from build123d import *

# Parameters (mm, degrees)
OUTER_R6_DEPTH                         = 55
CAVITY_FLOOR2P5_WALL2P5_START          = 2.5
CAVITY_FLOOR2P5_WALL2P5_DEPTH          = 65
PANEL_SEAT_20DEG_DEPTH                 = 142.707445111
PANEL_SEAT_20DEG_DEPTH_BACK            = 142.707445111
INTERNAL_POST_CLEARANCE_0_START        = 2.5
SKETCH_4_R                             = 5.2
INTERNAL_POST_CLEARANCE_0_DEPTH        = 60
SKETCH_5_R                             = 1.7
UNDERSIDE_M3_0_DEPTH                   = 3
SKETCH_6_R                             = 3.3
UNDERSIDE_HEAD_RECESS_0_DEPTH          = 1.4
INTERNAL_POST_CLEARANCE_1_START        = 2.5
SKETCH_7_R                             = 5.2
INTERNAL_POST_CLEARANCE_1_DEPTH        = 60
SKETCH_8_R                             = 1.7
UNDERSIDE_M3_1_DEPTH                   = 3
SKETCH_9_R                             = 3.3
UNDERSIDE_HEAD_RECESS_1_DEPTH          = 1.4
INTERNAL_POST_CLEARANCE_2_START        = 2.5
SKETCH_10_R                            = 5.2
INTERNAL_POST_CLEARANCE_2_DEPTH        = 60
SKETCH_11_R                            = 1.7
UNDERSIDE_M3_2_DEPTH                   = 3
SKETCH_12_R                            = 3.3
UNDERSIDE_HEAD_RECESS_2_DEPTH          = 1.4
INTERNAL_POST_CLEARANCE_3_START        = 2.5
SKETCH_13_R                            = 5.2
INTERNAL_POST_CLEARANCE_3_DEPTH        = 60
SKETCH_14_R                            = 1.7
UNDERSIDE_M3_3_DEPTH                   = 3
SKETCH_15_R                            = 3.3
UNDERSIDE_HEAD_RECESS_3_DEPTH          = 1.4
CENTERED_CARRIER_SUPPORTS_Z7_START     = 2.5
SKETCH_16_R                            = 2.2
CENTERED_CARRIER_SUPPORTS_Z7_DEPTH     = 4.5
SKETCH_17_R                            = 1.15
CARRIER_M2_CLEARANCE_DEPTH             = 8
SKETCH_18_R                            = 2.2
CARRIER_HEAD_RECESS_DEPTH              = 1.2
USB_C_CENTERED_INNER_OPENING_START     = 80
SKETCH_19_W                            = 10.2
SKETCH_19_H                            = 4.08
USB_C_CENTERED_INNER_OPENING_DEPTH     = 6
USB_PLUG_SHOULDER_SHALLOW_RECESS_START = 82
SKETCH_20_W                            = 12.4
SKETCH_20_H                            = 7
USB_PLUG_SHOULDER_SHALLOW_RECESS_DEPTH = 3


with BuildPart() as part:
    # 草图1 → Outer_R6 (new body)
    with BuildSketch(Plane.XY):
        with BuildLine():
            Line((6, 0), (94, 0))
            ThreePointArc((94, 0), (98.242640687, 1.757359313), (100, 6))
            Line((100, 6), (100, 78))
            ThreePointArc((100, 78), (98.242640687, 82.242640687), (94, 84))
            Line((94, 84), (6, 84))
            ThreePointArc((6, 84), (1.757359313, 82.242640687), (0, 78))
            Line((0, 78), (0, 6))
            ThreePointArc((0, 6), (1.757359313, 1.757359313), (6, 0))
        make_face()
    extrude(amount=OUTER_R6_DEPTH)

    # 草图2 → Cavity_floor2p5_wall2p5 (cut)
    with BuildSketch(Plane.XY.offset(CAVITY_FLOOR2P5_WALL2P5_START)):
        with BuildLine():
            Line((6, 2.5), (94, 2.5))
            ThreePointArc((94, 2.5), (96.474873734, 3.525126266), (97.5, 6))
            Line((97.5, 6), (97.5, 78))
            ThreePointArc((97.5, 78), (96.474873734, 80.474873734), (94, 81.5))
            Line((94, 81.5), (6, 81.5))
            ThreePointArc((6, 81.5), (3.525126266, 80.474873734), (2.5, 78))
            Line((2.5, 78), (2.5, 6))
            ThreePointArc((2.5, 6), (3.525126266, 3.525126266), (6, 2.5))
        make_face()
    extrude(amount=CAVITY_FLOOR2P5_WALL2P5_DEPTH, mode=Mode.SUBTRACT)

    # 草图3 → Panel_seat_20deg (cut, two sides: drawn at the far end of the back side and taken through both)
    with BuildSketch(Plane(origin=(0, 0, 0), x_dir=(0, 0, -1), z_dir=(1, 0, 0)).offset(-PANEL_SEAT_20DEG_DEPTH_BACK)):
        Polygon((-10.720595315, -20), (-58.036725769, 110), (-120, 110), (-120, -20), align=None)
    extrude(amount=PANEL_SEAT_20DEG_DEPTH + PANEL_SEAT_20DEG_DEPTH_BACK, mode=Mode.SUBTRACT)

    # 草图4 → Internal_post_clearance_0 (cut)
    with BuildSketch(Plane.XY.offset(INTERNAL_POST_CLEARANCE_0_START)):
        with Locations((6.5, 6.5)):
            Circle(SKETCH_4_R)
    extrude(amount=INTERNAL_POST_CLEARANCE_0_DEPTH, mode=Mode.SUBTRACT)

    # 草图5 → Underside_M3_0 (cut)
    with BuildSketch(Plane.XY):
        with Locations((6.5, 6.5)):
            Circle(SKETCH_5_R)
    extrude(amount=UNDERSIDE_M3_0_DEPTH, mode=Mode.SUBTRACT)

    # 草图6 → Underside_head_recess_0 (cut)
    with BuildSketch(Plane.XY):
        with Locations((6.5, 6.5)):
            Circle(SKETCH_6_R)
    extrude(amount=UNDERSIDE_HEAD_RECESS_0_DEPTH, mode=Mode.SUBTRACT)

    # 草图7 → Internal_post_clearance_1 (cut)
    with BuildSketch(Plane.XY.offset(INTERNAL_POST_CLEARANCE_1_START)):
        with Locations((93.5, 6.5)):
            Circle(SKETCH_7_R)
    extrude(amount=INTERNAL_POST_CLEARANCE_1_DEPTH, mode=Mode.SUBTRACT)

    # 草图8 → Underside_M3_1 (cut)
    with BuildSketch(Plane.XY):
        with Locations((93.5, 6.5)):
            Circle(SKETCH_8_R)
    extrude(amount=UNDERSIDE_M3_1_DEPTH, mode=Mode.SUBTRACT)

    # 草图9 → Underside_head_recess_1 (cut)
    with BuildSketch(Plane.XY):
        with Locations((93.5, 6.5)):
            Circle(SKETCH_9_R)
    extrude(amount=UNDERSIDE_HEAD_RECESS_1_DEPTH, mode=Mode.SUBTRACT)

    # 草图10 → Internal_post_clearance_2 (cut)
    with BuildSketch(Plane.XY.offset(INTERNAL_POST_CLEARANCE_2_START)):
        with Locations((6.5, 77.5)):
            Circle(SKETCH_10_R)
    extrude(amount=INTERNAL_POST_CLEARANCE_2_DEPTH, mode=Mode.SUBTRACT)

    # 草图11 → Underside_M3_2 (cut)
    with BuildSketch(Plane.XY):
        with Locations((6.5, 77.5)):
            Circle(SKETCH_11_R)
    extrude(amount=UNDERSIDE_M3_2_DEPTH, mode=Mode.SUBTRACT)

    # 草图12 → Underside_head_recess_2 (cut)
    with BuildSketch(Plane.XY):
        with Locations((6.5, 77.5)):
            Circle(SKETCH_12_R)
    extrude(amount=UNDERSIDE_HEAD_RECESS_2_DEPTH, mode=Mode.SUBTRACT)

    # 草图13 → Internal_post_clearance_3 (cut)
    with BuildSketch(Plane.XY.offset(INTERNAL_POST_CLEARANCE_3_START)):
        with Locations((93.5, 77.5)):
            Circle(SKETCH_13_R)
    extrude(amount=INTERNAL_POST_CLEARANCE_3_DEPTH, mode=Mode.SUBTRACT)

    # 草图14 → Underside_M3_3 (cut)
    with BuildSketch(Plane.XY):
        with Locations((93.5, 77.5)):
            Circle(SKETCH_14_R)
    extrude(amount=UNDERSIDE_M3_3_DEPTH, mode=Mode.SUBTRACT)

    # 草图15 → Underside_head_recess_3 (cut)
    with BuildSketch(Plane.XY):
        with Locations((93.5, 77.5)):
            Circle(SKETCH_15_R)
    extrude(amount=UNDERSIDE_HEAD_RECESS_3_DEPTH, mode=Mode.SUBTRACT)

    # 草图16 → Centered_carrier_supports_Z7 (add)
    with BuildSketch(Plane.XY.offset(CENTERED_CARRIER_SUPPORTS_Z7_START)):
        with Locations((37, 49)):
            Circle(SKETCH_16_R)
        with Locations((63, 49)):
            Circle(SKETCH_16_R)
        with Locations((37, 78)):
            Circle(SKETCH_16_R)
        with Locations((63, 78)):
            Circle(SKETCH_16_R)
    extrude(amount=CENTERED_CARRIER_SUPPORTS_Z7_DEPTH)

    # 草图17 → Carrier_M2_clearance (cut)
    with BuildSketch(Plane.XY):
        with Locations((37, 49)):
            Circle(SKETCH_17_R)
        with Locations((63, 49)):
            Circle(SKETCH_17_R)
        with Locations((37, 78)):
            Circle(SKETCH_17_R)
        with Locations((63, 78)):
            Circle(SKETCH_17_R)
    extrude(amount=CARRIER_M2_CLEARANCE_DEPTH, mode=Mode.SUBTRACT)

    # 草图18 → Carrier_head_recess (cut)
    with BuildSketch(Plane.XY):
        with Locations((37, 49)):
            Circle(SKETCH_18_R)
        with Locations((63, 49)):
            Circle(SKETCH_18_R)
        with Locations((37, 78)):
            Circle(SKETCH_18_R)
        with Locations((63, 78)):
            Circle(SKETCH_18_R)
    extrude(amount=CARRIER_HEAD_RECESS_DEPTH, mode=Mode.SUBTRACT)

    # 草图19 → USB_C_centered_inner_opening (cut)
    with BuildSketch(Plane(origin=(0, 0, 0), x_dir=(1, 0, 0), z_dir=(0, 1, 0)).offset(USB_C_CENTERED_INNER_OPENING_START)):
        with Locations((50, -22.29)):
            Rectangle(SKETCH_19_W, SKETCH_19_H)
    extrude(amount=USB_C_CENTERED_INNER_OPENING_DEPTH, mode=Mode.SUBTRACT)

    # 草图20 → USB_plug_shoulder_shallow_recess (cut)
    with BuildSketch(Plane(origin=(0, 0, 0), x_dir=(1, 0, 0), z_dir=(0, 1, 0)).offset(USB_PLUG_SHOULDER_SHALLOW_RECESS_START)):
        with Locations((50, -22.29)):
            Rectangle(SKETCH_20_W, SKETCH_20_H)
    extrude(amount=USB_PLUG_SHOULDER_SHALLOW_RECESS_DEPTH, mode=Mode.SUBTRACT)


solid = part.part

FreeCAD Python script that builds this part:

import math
import FreeCAD as App
import Part
import Sketcher
Q = App.Units.Quantity


def add_polygon(sketch, points):
    """Adds a closed chain of lines whose ends are joined by coincident constraints."""
    first, n = sketch.GeometryCount, len(points)
    for a, b in zip(points, points[1:] + points[:1]):
        sketch.addGeometry(Part.LineSegment(App.Vector(*a, 0), App.Vector(*b, 0)), False)
    for i in range(n):
        sketch.addConstraint(Sketcher.Constraint("Coincident", first + i, 2, first + (i + 1) % n, 1))

doc = App.newDocument("Part")
body = doc.addObject("PartDesign::Body", "Body")

# Sketch on XY plane
sketch1 = doc.addObject("Sketcher::SketchObject", "Sketch")
body.addObject(sketch1)
sketch1.AttachmentSupport = (doc.XY_Plane, [""])
sketch1.MapMode = "FlatFace"
sketch1.addGeometry(Part.LineSegment(App.Vector(6, 0, 0), App.Vector(94, 0, 0)), False)
sketch1.addGeometry(Part.ArcOfCircle(Part.Circle(App.Vector(94, 6, 0), App.Vector(0, 0, 1), 6), math.radians(-90), math.radians(0)), False)
sketch1.addGeometry(Part.LineSegment(App.Vector(100, 6, 0), App.Vector(100, 78, 0)), False)
sketch1.addGeometry(Part.ArcOfCircle(Part.Circle(App.Vector(94, 78, 0), App.Vector(0, 0, 1), 6), math.radians(0), math.radians(90)), False)
sketch1.addGeometry(Part.LineSegment(App.Vector(94, 84, 0), App.Vector(6, 84, 0)), False)
sketch1.addGeometry(Part.ArcOfCircle(Part.Circle(App.Vector(6, 78, 0), App.Vector(0, 0, 1), 6), math.radians(90), math.radians(180)), False)
sketch1.addGeometry(Part.LineSegment(App.Vector(0, 78, 0), App.Vector(0, 6, 0)), False)
sketch1.addGeometry(Part.ArcOfCircle(Part.Circle(App.Vector(6, 6, 0), App.Vector(0, 0, 1), 6), math.radians(180), math.radians(270)), False)
sketch1.addConstraint(Sketcher.Constraint("Tangent", 0, 2, 1, 1))
sketch1.addConstraint(Sketcher.Constraint("Tangent", 1, 2, 2, 1))
sketch1.addConstraint(Sketcher.Constraint("Tangent", 2, 2, 3, 1))
sketch1.addConstraint(Sketcher.Constraint("Tangent", 3, 2, 4, 1))
sketch1.addConstraint(Sketcher.Constraint("Tangent", 4, 2, 5, 1))
sketch1.addConstraint(Sketcher.Constraint("Tangent", 5, 2, 6, 1))
sketch1.addConstraint(Sketcher.Constraint("Tangent", 6, 2, 7, 1))
sketch1.addConstraint(Sketcher.Constraint("Tangent", 7, 2, 0, 1))
sketch1.addConstraint(Sketcher.Constraint("Horizontal", 0))
sketch1.addConstraint(Sketcher.Constraint("Vertical", 2))
sketch1.addConstraint(Sketcher.Constraint("Horizontal", 4))
sketch1.addConstraint(Sketcher.Constraint("Vertical", 6))
sketch1.addConstraint(Sketcher.Constraint("Equal", 1, 3))
sketch1.addConstraint(Sketcher.Constraint("Equal", 3, 5))
sketch1.addConstraint(Sketcher.Constraint("Equal", 5, 7))
sketch1.addConstraint(Sketcher.Constraint("PointOnObject", 0, 2, -1))
sketch1.addConstraint(Sketcher.Constraint("PointOnObject", 5, 2, -2))
sketch1.addConstraint(Sketcher.Constraint("Radius", 1, Q("6 mm")))
sketch1.addConstraint(Sketcher.Constraint("DistanceX", 0, 1, 0, 2, Q("88 mm")))
sketch1.addConstraint(Sketcher.Constraint("DistanceY", 2, 1, 2, 2, Q("72 mm")))
pad1 = doc.addObject("PartDesign::Pad", "Pad")
body.addObject(pad1)
pad1.Profile = sketch1
pad1.Length = 55

# Sketch on XY plane
sketch2 = doc.addObject("Sketcher::SketchObject", "Sketch001")
body.addObject(sketch2)
sketch2.AttachmentSupport = (doc.XY_Plane, [""])
sketch2.MapMode = "FlatFace"
sketch2.AttachmentOffset = App.Placement(App.Vector(0, 0, 2.5), App.Rotation())
sketch2.addGeometry(Part.LineSegment(App.Vector(6, 2.5, 0), App.Vector(94, 2.5, 0)), False)
sketch2.addGeometry(Part.ArcOfCircle(Part.Circle(App.Vector(94, 6, 0), App.Vector(0, 0, 1), 3.5), math.radians(-90), math.radians(0)), False)
sketch2.addGeometry(Part.LineSegment(App.Vector(97.5, 6, 0), App.Vector(97.5, 78, 0)), False)
sketch2.addGeometry(Part.ArcOfCircle(Part.Circle(App.Vector(94, 78, 0), App.Vector(0, 0, 1), 3.5), math.radians(0), math.radians(90)), False)
sketch2.addGeometry(Part.LineSegment(App.Vector(94, 81.5, 0), App.Vector(6, 81.5, 0)), False)
sketch2.addGeometry(Part.ArcOfCircle(Part.Circle(App.Vector(6, 78, 0), App.Vector(0, 0, 1), 3.5), math.radians(90), math.radians(180)), False)
sketch2.addGeometry(Part.LineSegment(App.Vector(2.5, 78, 0), App.Vector(2.5, 6, 0)), False)
sketch2.addGeometry(Part.ArcOfCircle(Part.Circle(App.Vector(6, 6, 0), App.Vector(0, 0, 1), 3.5), math.radians(-180), math.radians(-90)), False)
sketch2.addConstraint(Sketcher.Constraint("Tangent", 0, 2, 1, 1))
sketch2.addConstraint(Sketcher.Constraint("Tangent", 1, 2, 2, 1))
sketch2.addConstraint(Sketcher.Constraint("Tangent", 2, 2, 3, 1))
sketch2.addConstraint(Sketcher.Constraint("Tangent", 3, 2, 4, 1))
sketch2.addConstraint(Sketcher.Constraint("Tangent", 4, 2, 5, 1))
sketch2.addConstraint(Sketcher.Constraint("Tangent", 5, 2, 6, 1))
sketch2.addConstraint(Sketcher.Constraint("Tangent", 6, 2, 7, 1))
sketch2.addConstraint(Sketcher.Constraint("Tangent", 7, 2, 0, 1))
sketch2.addConstraint(Sketcher.Constraint("Horizontal", 0))
sketch2.addConstraint(Sketcher.Constraint("Vertical", 2))
sketch2.addConstraint(Sketcher.Constraint("Horizontal", 4))
sketch2.addConstraint(Sketcher.Constraint("Vertical", 6))
sketch2.addConstraint(Sketcher.Constraint("Equal", 1, 3))
sketch2.addConstraint(Sketcher.Constraint("Equal", 3, 5))
sketch2.addConstraint(Sketcher.Constraint("Equal", 5, 7))
sketch2.addConstraint(Sketcher.Constraint("Radius", 1, Q("3.5 mm")))
sketch2.addConstraint(Sketcher.Constraint("DistanceX", 0, 1, 0, 2, Q("88 mm")))
sketch2.addConstraint(Sketcher.Constraint("DistanceY", 2, 1, 2, 2, Q("72 mm")))
sketch2.addConstraint(Sketcher.Constraint("DistanceX", -1, 1, 1, 3, Q("94 mm")))
sketch2.addConstraint(Sketcher.Constraint("DistanceY", -1, 1, 1, 3, Q("6 mm")))
pocket1 = doc.addObject("PartDesign::Pocket", "Pocket")
body.addObject(pocket1)
pocket1.Profile = sketch2
pocket1.Length = 65
pocket1.Reversed = True

# Sketch on YZ plane
sketch3 = doc.addObject("Sketcher::SketchObject", "Sketch002")
body.addObject(sketch3)
sketch3.AttachmentSupport = (doc.YZ_Plane, [""])
sketch3.MapMode = "FlatFace"
add_polygon(sketch3, [(-20, 10.720595), (110, 58.036726), (110, 120), (-20, 120)])  # lines 0-3
sketch3.addConstraint(Sketcher.Constraint("Vertical", 1))
sketch3.addConstraint(Sketcher.Constraint("Horizontal", 2))
sketch3.addConstraint(Sketcher.Constraint("Vertical", 3))
sketch3.addConstraint(Sketcher.Constraint("DistanceX", 2, 2, 2, 1, Q("130 mm")))
sketch3.addConstraint(Sketcher.Constraint("Angle", 0, Q("20 deg")))
sketch3.addConstraint(Sketcher.Constraint("DistanceX", -1, 1, 0, 2, Q("110 mm")))
sketch3.addConstraint(Sketcher.Constraint("DistanceY", -1, 1, 1, 2, Q("120 mm")))
sketch3.addConstraint(Sketcher.Constraint("DistanceY", 1, 1, 1, 2, Q("61.963274 mm")))
pocket2 = doc.addObject("PartDesign::Pocket", "Pocket001")
body.addObject(pocket2)
pocket2.Profile = sketch3
pocket2.Type = "ThroughAll"
pocket2.Midplane = True

# Sketch on XY plane
sketch4 = doc.addObject("Sketcher::SketchObject", "Sketch003")
body.addObject(sketch4)
sketch4.AttachmentSupport = (doc.XY_Plane, [""])
sketch4.MapMode = "FlatFace"
sketch4.AttachmentOffset = App.Placement(App.Vector(0, 0, 2.5), App.Rotation())
sketch4.addGeometry(Part.Circle(App.Vector(6.5, 6.5, 0), App.Vector(0, 0, 1), 5.2), False)
sketch4.addConstraint(Sketcher.Constraint("Diameter", 0, Q("10.4 mm")))
sketch4.addConstraint(Sketcher.Constraint("DistanceX", -1, 1, 0, 3, Q("6.5 mm")))
sketch4.addConstraint(Sketcher.Constraint("DistanceY", -1, 1, 0, 3, Q("6.5 mm")))
pocket3 = doc.addObject("PartDesign::Pocket", "Pocket002")
body.addObject(pocket3)
pocket3.Profile = sketch4
pocket3.Length = 60
pocket3.Reversed = True

# Sketch on XY plane
sketch5 = doc.addObject("Sketcher::SketchObject", "Sketch004")
body.addObject(sketch5)
sketch5.AttachmentSupport = (doc.XY_Plane, [""])
sketch5.MapMode = "FlatFace"
sketch5.addGeometry(Part.Circle(App.Vector(6.5, 6.5, 0), App.Vector(0, 0, 1), 1.7), False)
sketch5.addConstraint(Sketcher.Constraint("Diameter", 0, Q("3.4 mm")))
sketch5.addConstraint(Sketcher.Constraint("DistanceX", -1, 1, 0, 3, Q("6.5 mm")))
sketch5.addConstraint(Sketcher.Constraint("DistanceY", -1, 1, 0, 3, Q("6.5 mm")))
pocket4 = doc.addObject("PartDesign::Pocket", "Pocket003")
body.addObject(pocket4)
pocket4.Profile = sketch5
pocket4.Length = 3
pocket4.Reversed = True

# Sketch on XY plane
sketch6 = doc.addObject("Sketcher::SketchObject", "Sketch005")
body.addObject(sketch6)
sketch6.AttachmentSupport = (doc.XY_Plane, [""])
sketch6.MapMode = "FlatFace"
sketch6.addGeometry(Part.Circle(App.Vector(6.5, 6.5, 0), App.Vector(0, 0, 1), 3.3), False)
sketch6.addConstraint(Sketcher.Constraint("Diameter", 0, Q("6.6 mm")))
sketch6.addConstraint(Sketcher.Constraint("DistanceX", -1, 1, 0, 3, Q("6.5 mm")))
sketch6.addConstraint(Sketcher.Constraint("DistanceY", -1, 1, 0, 3, Q("6.5 mm")))
pocket5 = doc.addObject("PartDesign::Pocket", "Pocket004")
body.addObject(pocket5)
pocket5.Profile = sketch6
pocket5.Length = 1.4
pocket5.Reversed = True

# Sketch on XY plane
sketch7 = doc.addObject("Sketcher::SketchObject", "Sketch006")
body.addObject(sketch7)
sketch7.AttachmentSupport = (doc.XY_Plane, [""])
sketch7.MapMode = "FlatFace"
sketch7.AttachmentOffset = App.Placement(App.Vector(0, 0, 2.5), App.Rotation())
sketch7.addGeometry(Part.Circle(App.Vector(93.5, 6.5, 0), App.Vector(0, 0, 1), 5.2), False)
sketch7.addConstraint(Sketcher.Constraint("Diameter", 0, Q("10.4 mm")))
sketch7.addConstraint(Sketcher.Constraint("DistanceX", -1, 1, 0, 3, Q("93.5 mm")))
sketch7.addConstraint(Sketcher.Constraint("DistanceY", -1, 1, 0, 3, Q("6.5 mm")))
pocket6 = doc.addObject("PartDesign::Pocket", "Pocket005")
body.addObject(pocket6)
pocket6.Profile = sketch7
pocket6.Length = 60
pocket6.Reversed = True

# Sketch on XY plane
sketch8 = doc.addObject("Sketcher::SketchObject", "Sketch007")
body.addObject(sketch8)
sketch8.AttachmentSupport = (doc.XY_Plane, [""])
sketch8.MapMode = "FlatFace"
sketch8.addGeometry(Part.Circle(App.Vector(93.5, 6.5, 0), App.Vector(0, 0, 1), 1.7), False)
sketch8.addConstraint(Sketcher.Constraint("Diameter", 0, Q("3.4 mm")))
sketch8.addConstraint(Sketcher.Constraint("DistanceX", -1, 1, 0, 3, Q("93.5 mm")))
sketch8.addConstraint(Sketcher.Constraint("DistanceY", -1, 1, 0, 3, Q("6.5 mm")))
pocket7 = doc.addObject("PartDesign::Pocket", "Pocket006")
body.addObject(pocket7)
pocket7.Profile = sketch8
pocket7.Length = 3
pocket7.Reversed = True

# Sketch on XY plane
sketch9 = doc.addObject("Sketcher::SketchObject", "Sketch008")
body.addObject(sketch9)
sketch9.AttachmentSupport = (doc.XY_Plane, [""])
sketch9.MapMode = "FlatFace"
sketch9.addGeometry(Part.Circle(App.Vector(93.5, 6.5, 0), App.Vector(0, 0, 1), 3.3), False)
sketch9.addConstraint(Sketcher.Constraint("Diameter", 0, Q("6.6 mm")))
sketch9.addConstraint(Sketcher.Constraint("DistanceX", -1, 1, 0, 3, Q("93.5 mm")))
sketch9.addConstraint(Sketcher.Constraint("DistanceY", -1, 1, 0, 3, Q("6.5 mm")))
pocket8 = doc.addObject("PartDesign::Pocket", "Pocket007")
body.addObject(pocket8)
pocket8.Profile = sketch9
pocket8.Length = 1.4
pocket8.Reversed = True

# Sketch on XY plane
sketch10 = doc.addObject("Sketcher::SketchObject", "Sketch009")
body.addObject(sketch10)
sketch10.AttachmentSupport = (doc.XY_Plane, [""])
sketch10.MapMode = "FlatFace"
sketch10.AttachmentOffset = App.Placement(App.Vector(0, 0, 2.5), App.Rotation())
sketch10.addGeometry(Part.Circle(App.Vector(6.5, 77.5, 0), App.Vector(0, 0, 1), 5.2), False)
sketch10.addConstraint(Sketcher.Constraint("Diameter", 0, Q("10.4 mm")))
sketch10.addConstraint(Sketcher.Constraint("DistanceX", -1, 1, 0, 3, Q("6.5 mm")))
sketch10.addConstraint(Sketcher.Constraint("DistanceY", -1, 1, 0, 3, Q("77.5 mm")))
pocket9 = doc.addObject("PartDesign::Pocket", "Pocket008")
body.addObject(pocket9)
pocket9.Profile = sketch10
pocket9.Length = 60
pocket9.Reversed = True

# Sketch on XY plane
sketch11 = doc.addObject("Sketcher::SketchObject", "Sketch010")
body.addObject(sketch11)
sketch11.AttachmentSupport = (doc.XY_Plane, [""])
sketch11.MapMode = "FlatFace"
sketch11.addGeometry(Part.Circle(App.Vector(6.5, 77.5, 0), App.Vector(0, 0, 1), 1.7), False)
sketch11.addConstraint(Sketcher.Constraint("Diameter", 0, Q("3.4 mm")))
sketch11.addConstraint(Sketcher.Constraint("DistanceX", -1, 1, 0, 3, Q("6.5 mm")))
sketch11.addConstraint(Sketcher.Constraint("DistanceY", -1, 1, 0, 3, Q("77.5 mm")))
pocket10 = doc.addObject("PartDesign::Pocket", "Pocket009")
body.addObject(pocket10)
pocket10.Profile = sketch11
pocket10.Length = 3
pocket10.Reversed = True

# Sketch on XY plane
sketch12 = doc.addObject("Sketcher::SketchObject", "Sketch011")
body.addObject(sketch12)
sketch12.AttachmentSupport = (doc.XY_Plane, [""])
sketch12.MapMode = "FlatFace"
sketch12.addGeometry(Part.Circle(App.Vector(6.5, 77.5, 0), App.Vector(0, 0, 1), 3.3), False)
sketch12.addConstraint(Sketcher.Constraint("Diameter", 0, Q("6.6 mm")))
sketch12.addConstraint(Sketcher.Constraint("DistanceX", -1, 1, 0, 3, Q("6.5 mm")))
sketch12.addConstraint(Sketcher.Constraint("DistanceY", -1, 1, 0, 3, Q("77.5 mm")))
pocket11 = doc.addObject("PartDesign::Pocket", "Pocket010")
body.addObject(pocket11)
pocket11.Profile = sketch12
pocket11.Length = 1.4
pocket11.Reversed = True

# Sketch on XY plane
sketch13 = doc.addObject("Sketcher::SketchObject", "Sketch012")
body.addObject(sketch13)
sketch13.AttachmentSupport = (doc.XY_Plane, [""])
sketch13.MapMode = "FlatFace"
sketch13.AttachmentOffset = App.Placement(App.Vector(0, 0, 2.5), App.Rotation())
sketch13.addGeometry(Part.Circle(App.Vector(93.5, 77.5, 0), App.Vector(0, 0, 1), 5.2), False)
sketch13.addConstraint(Sketcher.Constraint("Diameter", 0, Q("10.4 mm")))
sketch13.addConstraint(Sketcher.Constraint("DistanceX", -1, 1, 0, 3, Q("93.5 mm")))
sketch13.addConstraint(Sketcher.Constraint("DistanceY", -1, 1, 0, 3, Q("77.5 mm")))
pocket12 = doc.addObject("PartDesign::Pocket", "Pocket011")
body.addObject(pocket12)
pocket12.Profile = sketch13
pocket12.Length = 60
pocket12.Reversed = True

# Sketch on XY plane
sketch14 = doc.addObject("Sketcher::SketchObject", "Sketch013")
body.addObject(sketch14)
sketch14.AttachmentSupport = (doc.XY_Plane, [""])
sketch14.MapMode = "FlatFace"
sketch14.addGeometry(Part.Circle(App.Vector(93.5, 77.5, 0), App.Vector(0, 0, 1), 1.7), False)
sketch14.addConstraint(Sketcher.Constraint("Diameter", 0, Q("3.4 mm")))
sketch14.addConstraint(Sketcher.Constraint("DistanceX", -1, 1, 0, 3, Q("93.5 mm")))
sketch14.addConstraint(Sketcher.Constraint("DistanceY", -1, 1, 0, 3, Q("77.5 mm")))
pocket13 = doc.addObject("PartDesign::Pocket", "Pocket012")
body.addObject(pocket13)
pocket13.Profile = sketch14
pocket13.Length = 3
pocket13.Reversed = True

# Sketch on XY plane
sketch15 = doc.addObject("Sketcher::SketchObject", "Sketch014")
body.addObject(sketch15)
sketch15.AttachmentSupport = (doc.XY_Plane, [""])
sketch15.MapMode = "FlatFace"
sketch15.addGeometry(Part.Circle(App.Vector(93.5, 77.5, 0), App.Vector(0, 0, 1), 3.3), False)
sketch15.addConstraint(Sketcher.Constraint("Diameter", 0, Q("6.6 mm")))
sketch15.addConstraint(Sketcher.Constraint("DistanceX", -1, 1, 0, 3, Q("93.5 mm")))
sketch15.addConstraint(Sketcher.Constraint("DistanceY", -1, 1, 0, 3, Q("77.5 mm")))
pocket14 = doc.addObject("PartDesign::Pocket", "Pocket013")
body.addObject(pocket14)
pocket14.Profile = sketch15
pocket14.Length = 1.4
pocket14.Reversed = True

# Sketch on XY plane
sketch16 = doc.addObject("Sketcher::SketchObject", "Sketch015")
body.addObject(sketch16)
sketch16.AttachmentSupport = (doc.XY_Plane, [""])
sketch16.MapMode = "FlatFace"
sketch16.AttachmentOffset = App.Placement(App.Vector(0, 0, 2.5), App.Rotation())
sketch16.addGeometry(Part.Circle(App.Vector(37, 49, 0), App.Vector(0, 0, 1), 2.2), False)
sketch16.addGeometry(Part.Circle(App.Vector(63, 49, 0), App.Vector(0, 0, 1), 2.2), False)
sketch16.addGeometry(Part.Circle(App.Vector(37, 78, 0), App.Vector(0, 0, 1), 2.2), False)
sketch16.addGeometry(Part.Circle(App.Vector(63, 78, 0), App.Vector(0, 0, 1), 2.2), False)
sketch16.addConstraint(Sketcher.Constraint("Equal", 0, 1))
sketch16.addConstraint(Sketcher.Constraint("Equal", 1, 2))
sketch16.addConstraint(Sketcher.Constraint("Equal", 2, 3))
sketch16.addConstraint(Sketcher.Constraint("Horizontal", 0, 3, 1, 3))
sketch16.addConstraint(Sketcher.Constraint("Horizontal", 2, 3, 3, 3))
sketch16.addConstraint(Sketcher.Constraint("Vertical", 0, 3, 2, 3))
sketch16.addConstraint(Sketcher.Constraint("Vertical", 1, 3, 3, 3))
sketch16.addConstraint(Sketcher.Constraint("Diameter", 0, Q("4.4 mm")))
sketch16.addConstraint(Sketcher.Constraint("DistanceX", -1, 1, 0, 3, Q("37 mm")))
sketch16.addConstraint(Sketcher.Constraint("DistanceY", -1, 1, 0, 3, Q("49 mm")))
sketch16.addConstraint(Sketcher.Constraint("DistanceX", -1, 1, 1, 3, Q("63 mm")))
sketch16.addConstraint(Sketcher.Constraint("DistanceY", -1, 1, 2, 3, Q("78 mm")))
pad2 = doc.addObject("PartDesign::Pad", "Pad001")
body.addObject(pad2)
pad2.Profile = sketch16
pad2.Length = 4.5

# Sketch on XY plane
sketch17 = doc.addObject("Sketcher::SketchObject", "Sketch016")
body.addObject(sketch17)
sketch17.AttachmentSupport = (doc.XY_Plane, [""])
sketch17.MapMode = "FlatFace"
sketch17.addGeometry(Part.Circle(App.Vector(37, 49, 0), App.Vector(0, 0, 1), 1.15), False)
sketch17.addGeometry(Part.Circle(App.Vector(63, 49, 0), App.Vector(0, 0, 1), 1.15), False)
sketch17.addGeometry(Part.Circle(App.Vector(37, 78, 0), App.Vector(0, 0, 1), 1.15), False)
sketch17.addGeometry(Part.Circle(App.Vector(63, 78, 0), App.Vector(0, 0, 1), 1.15), False)
sketch17.addConstraint(Sketcher.Constraint("Equal", 0, 1))
sketch17.addConstraint(Sketcher.Constraint("Equal", 1, 2))
sketch17.addConstraint(Sketcher.Constraint("Equal", 2, 3))
sketch17.addConstraint(Sketcher.Constraint("Horizontal", 0, 3, 1, 3))
sketch17.addConstraint(Sketcher.Constraint("Horizontal", 2, 3, 3, 3))
sketch17.addConstraint(Sketcher.Constraint("Vertical", 0, 3, 2, 3))
sketch17.addConstraint(Sketcher.Constraint("Vertical", 1, 3, 3, 3))
sketch17.addConstraint(Sketcher.Constraint("Diameter", 0, Q("2.3 mm")))
sketch17.addConstraint(Sketcher.Constraint("DistanceX", -1, 1, 0, 3, Q("37 mm")))
sketch17.addConstraint(Sketcher.Constraint("DistanceY", -1, 1, 0, 3, Q("49 mm")))
sketch17.addConstraint(Sketcher.Constraint("DistanceX", -1, 1, 1, 3, Q("63 mm")))
sketch17.addConstraint(Sketcher.Constraint("DistanceY", -1, 1, 2, 3, Q("78 mm")))
pocket15 = doc.addObject("PartDesign::Pocket", "Pocket014")
body.addObject(pocket15)
pocket15.Profile = sketch17
pocket15.Length = 8
pocket15.Reversed = True

# Sketch on XY plane
sketch18 = doc.addObject("Sketcher::SketchObject", "Sketch017")
body.addObject(sketch18)
sketch18.AttachmentSupport = (doc.XY_Plane, [""])
sketch18.MapMode = "FlatFace"
sketch18.addGeometry(Part.Circle(App.Vector(37, 49, 0), App.Vector(0, 0, 1), 2.2), False)
sketch18.addGeometry(Part.Circle(App.Vector(63, 49, 0), App.Vector(0, 0, 1), 2.2), False)
sketch18.addGeometry(Part.Circle(App.Vector(37, 78, 0), App.Vector(0, 0, 1), 2.2), False)
sketch18.addGeometry(Part.Circle(App.Vector(63, 78, 0), App.Vector(0, 0, 1), 2.2), False)
sketch18.addConstraint(Sketcher.Constraint("Equal", 0, 1))
sketch18.addConstraint(Sketcher.Constraint("Equal", 1, 2))
sketch18.addConstraint(Sketcher.Constraint("Equal", 2, 3))
sketch18.addConstraint(Sketcher.Constraint("Horizontal", 0, 3, 1, 3))
sketch18.addConstraint(Sketcher.Constraint("Horizontal", 2, 3, 3, 3))
sketch18.addConstraint(Sketcher.Constraint("Vertical", 0, 3, 2, 3))
sketch18.addConstraint(Sketcher.Constraint("Vertical", 1, 3, 3, 3))
sketch18.addConstraint(Sketcher.Constraint("Diameter", 0, Q("4.4 mm")))
sketch18.addConstraint(Sketcher.Constraint("DistanceX", -1, 1, 0, 3, Q("37 mm")))
sketch18.addConstraint(Sketcher.Constraint("DistanceY", -1, 1, 0, 3, Q("49 mm")))
sketch18.addConstraint(Sketcher.Constraint("DistanceX", -1, 1, 1, 3, Q("63 mm")))
sketch18.addConstraint(Sketcher.Constraint("DistanceY", -1, 1, 2, 3, Q("78 mm")))
pocket16 = doc.addObject("PartDesign::Pocket", "Pocket015")
body.addObject(pocket16)
pocket16.Profile = sketch18
pocket16.Length = 1.2
pocket16.Reversed = True

# Sketch on XZ plane
sketch19 = doc.addObject("Sketcher::SketchObject", "Sketch018")
body.addObject(sketch19)
sketch19.AttachmentSupport = (doc.XZ_Plane, [""])
sketch19.MapMode = "FlatFace"
sketch19.AttachmentOffset = App.Placement(App.Vector(0, 0, -80), App.Rotation())
add_polygon(sketch19, [(44.9, 20.25), (44.9, 24.33), (55.1, 24.33), (55.1, 20.25)])  # lines 0-3
sketch19.addConstraint(Sketcher.Constraint("Vertical", 0))
sketch19.addConstraint(Sketcher.Constraint("Horizontal", 1))
sketch19.addConstraint(Sketcher.Constraint("Vertical", 2))
sketch19.addConstraint(Sketcher.Constraint("Horizontal", 3))
sketch19.addConstraint(Sketcher.Constraint("DistanceX", 1, 1, 1, 2, Q("10.2 mm")))
sketch19.addConstraint(Sketcher.Constraint("DistanceY", 0, 1, 0, 2, Q("4.08 mm")))
sketch19.addConstraint(Sketcher.Constraint("DistanceX", -1, 1, 0, 2, Q("44.9 mm")))
sketch19.addConstraint(Sketcher.Constraint("DistanceY", -1, 1, 0, 2, Q("24.33 mm")))
pocket17 = doc.addObject("PartDesign::Pocket", "Pocket016")
body.addObject(pocket17)
pocket17.Profile = sketch19
pocket17.Length = 6

# Sketch on XZ plane
sketch20 = doc.addObject("Sketcher::SketchObject", "Sketch019")
body.addObject(sketch20)
sketch20.AttachmentSupport = (doc.XZ_Plane, [""])
sketch20.MapMode = "FlatFace"
sketch20.AttachmentOffset = App.Placement(App.Vector(0, 0, -82), App.Rotation())
add_polygon(sketch20, [(43.8, 18.79), (43.8, 25.79), (56.2, 25.79), (56.2, 18.79)])  # lines 0-3
sketch20.addConstraint(Sketcher.Constraint("Vertical", 0))
sketch20.addConstraint(Sketcher.Constraint("Horizontal", 1))
sketch20.addConstraint(Sketcher.Constraint("Vertical", 2))
sketch20.addConstraint(Sketcher.Constraint("Horizontal", 3))
sketch20.addConstraint(Sketcher.Constraint("DistanceY", 0, 1, 0, 2, Q("7 mm")))
sketch20.addConstraint(Sketcher.Constraint("DistanceX", 1, 1, 1, 2, Q("12.4 mm")))
sketch20.addConstraint(Sketcher.Constraint("DistanceX", -1, 1, 0, 2, Q("43.8 mm")))
sketch20.addConstraint(Sketcher.Constraint("DistanceY", -1, 1, 0, 2, Q("25.79 mm")))
pocket18 = doc.addObject("PartDesign::Pocket", "Pocket017")
body.addObject(pocket18)
pocket18.Profile = sketch20
pocket18.Length = 3

doc.recompute()
